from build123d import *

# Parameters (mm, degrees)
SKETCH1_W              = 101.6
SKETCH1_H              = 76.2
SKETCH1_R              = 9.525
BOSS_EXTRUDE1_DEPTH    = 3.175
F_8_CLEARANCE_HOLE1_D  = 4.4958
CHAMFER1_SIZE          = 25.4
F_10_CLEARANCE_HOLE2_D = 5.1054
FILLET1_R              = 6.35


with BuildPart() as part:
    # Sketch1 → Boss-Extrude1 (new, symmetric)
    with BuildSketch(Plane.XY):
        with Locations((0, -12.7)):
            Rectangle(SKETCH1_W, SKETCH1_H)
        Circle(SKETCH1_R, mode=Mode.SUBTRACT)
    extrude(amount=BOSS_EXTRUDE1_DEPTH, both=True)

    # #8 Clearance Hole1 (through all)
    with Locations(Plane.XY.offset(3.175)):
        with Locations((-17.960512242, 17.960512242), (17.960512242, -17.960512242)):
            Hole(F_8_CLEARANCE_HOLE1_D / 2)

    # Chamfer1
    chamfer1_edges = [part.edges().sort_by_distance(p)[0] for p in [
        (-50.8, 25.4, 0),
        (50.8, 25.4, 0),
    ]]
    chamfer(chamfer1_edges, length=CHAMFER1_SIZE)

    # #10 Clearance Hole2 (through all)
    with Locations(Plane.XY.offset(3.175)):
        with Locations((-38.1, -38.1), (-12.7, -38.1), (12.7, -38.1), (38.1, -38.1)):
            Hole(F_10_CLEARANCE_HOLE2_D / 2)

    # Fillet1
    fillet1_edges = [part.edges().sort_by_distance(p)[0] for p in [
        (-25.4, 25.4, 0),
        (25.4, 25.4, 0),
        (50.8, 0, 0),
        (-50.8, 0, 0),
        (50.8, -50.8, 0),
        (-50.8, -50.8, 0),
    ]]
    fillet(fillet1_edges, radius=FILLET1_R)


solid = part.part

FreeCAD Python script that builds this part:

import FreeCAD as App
import Part
import Sketcher

V = App.Vector
Q = App.Units.Quantity


def edges_at(feature, points):
    """Names of the edges that pass closest to the given points."""
    edges = feature.Shape.Edges
    near = lambda p: min(range(len(edges)), key=lambda i: edges[i].distToShape(Part.Vertex(*p))[0])
    return sorted({f"Edge{near(p) + 1}" for p in points})

doc = App.newDocument("Part")
body = doc.addObject("PartDesign::Body", "Body")

# Sketch on XY plane
sketch1 = body.newObject("Sketcher::SketchObject", "Sketch")
sketch1.AttachmentSupport = (doc.getObject("XY_Plane"), [""])
sketch1.MapMode = "FlatFace"
sketch1.addGeometry([
    Part.LineSegment(V(-50.8, 25.4, 0), V(-50.8, -50.8, 0)),  # 0
    Part.LineSegment(V(-50.8, -50.8, 0), V(50.8, -50.8, 0)),  # 1
    Part.LineSegment(V(50.8, -50.8, 0), V(50.8, 25.4, 0)),  # 2
    Part.LineSegment(V(50.8, 25.4, 0), V(-50.8, 25.4, 0)),  # 3
    Part.Circle(V(0, 0, 0), V(0, 0, 1), 9.525),  # 4
], False)
sketch1.addConstraint([
    Sketcher.Constraint("Coincident", 0, 2, 1, 1),
    Sketcher.Constraint("Coincident", 1, 2, 2, 1),
    Sketcher.Constraint("Coincident", 2, 2, 3, 1),
    Sketcher.Constraint("Coincident", 3, 2, 0, 1),
    Sketcher.Constraint("Vertical", 0),
    Sketcher.Constraint("Horizontal", 1),
    Sketcher.Constraint("Vertical", 2),
    Sketcher.Constraint("Horizontal", 3),
    Sketcher.Constraint("Coincident", 4, 3, -1, 1),
    Sketcher.Constraint("Diameter", 4, Q("0.75 in")),
    Sketcher.Constraint("DistanceX", 1, 1, 1, 2, Q("4 in")),
    Sketcher.Constraint("DistanceY", 0, 2, 0, 1, Q("3 in")),
    Sketcher.Constraint("DistanceX", 0, 2, -1, 1, Q("2 in")),
    Sketcher.Constraint("DistanceY", 0, 2, -1, 1, Q("2 in")),
])
pad1 = body.newObject("PartDesign::Pad", "Pad")
pad1.Profile = sketch1
pad1.Length = Q("0.25 in")
pad1.Midplane = True

# Sketch on XY plane
sketch2 = body.newObject("Sketcher::SketchObject", "Sketch001")
sketch2.AttachmentSupport = (doc.getObject("XY_Plane"), [""])
sketch2.MapMode = "FlatFace"
sketch2.AttachmentOffset = App.Placement(V(0, 0, 0.125 * 25.4), App.Rotation())
sketch2.addGeometry([
    Part.Circle(V(-17.960512, 17.960512, 0), V(0, 0, 1), 2.2479),
    Part.Circle(V(17.960512, -17.960512, 0), V(0, 0, 1), 2.2479),
], False)
sketch2.addConstraint([
    Sketcher.Constraint("Equal", 0, 1),
    Sketcher.Constraint("Symmetric", 0, 3, 1, 3, -1, 1),
    Sketcher.Constraint("Diameter", 0, Q("0.177 in")),
    Sketcher.Constraint("DistanceX", 0, 3, -1, 1, 17.960512),
    Sketcher.Constraint("DistanceY", -1, 1, 0, 3, 17.960512),
])
doc.recompute()
hole = body.newObject("PartDesign::Hole", "Hole")
hole.Profile = sketch2
hole.ThreadType = "None"
hole.Diameter = Q("0.177 in")
hole.DepthType = "ThroughAll"
doc.recompute()

chamfer = body.newObject("PartDesign::Chamfer", "Chamfer")
chamfer.Base = (hole, edges_at(hole, [(-50.8, 25.4, 0), (50.8, 25.4, 0)]))
chamfer.Size = Q("1 in")

# Sketch on XY plane
sketch3 = body.newObject("Sketcher::SketchObject", "Sketch002")
sketch3.AttachmentSupport = (doc.getObject("XY_Plane"), [""])
sketch3.MapMode = "FlatFace"
sketch3.AttachmentOffset = App.Placement(V(0, 0, 0.125 * 25.4), App.Rotation())
sketch3.addGeometry([
    Part.Circle(V(-38.1, -38.1, 0), V(0, 0, 1), 2.5527),
    Part.Circle(V(-12.7, -38.1, 0), V(0, 0, 1), 2.5527),
    Part.Circle(V(12.7, -38.1, 0), V(0, 0, 1), 2.5527),
    Part.Circle(V(38.1, -38.1, 0), V(0, 0, 1), 2.5527),
], False)
sketch3.addConstraint([
    Sketcher.Constraint("Equal", 0, 1),
    Sketcher.Constraint("Equal", 1, 2),
    Sketcher.Constraint("Equal", 2, 3),
    Sketcher.Constraint("Symmetric", 1, 3, 2, 3, -2),
    Sketcher.Constraint("Symmetric", 0, 3, 3, 3, -2),
    Sketcher.Constraint("Horizontal", 0, 3, 1, 3),
    Sketcher.Constraint("Diameter", 0, Q("0.201 in")),
    Sketcher.Constraint("DistanceX", 0, 3, 1, 3, Q("1 in")),
    Sketcher.Constraint("DistanceX", 1, 3, 2, 3, Q("1 in")),
    Sketcher.Constraint("DistanceY", 0, 3, -1, 1, Q("1.5 in")),
])
doc.recompute()
hole2 = body.newObject("PartDesign::Hole", "Hole001")
hole2.Profile = sketch3
hole2.ThreadType = "None"
hole2.Diameter = Q("0.201 in")
hole2.DepthType = "ThroughAll"
doc.recompute()

fillet = body.newObject("PartDesign::Fillet", "Fillet")
fillet.Base = (hole2, edges_at(hole2, [
    (-25.4, 25.4, 0),
    (25.4, 25.4, 0),
    (50.8, 0, 0),
    (-50.8, 0, 0),
    (50.8, -50.8, 0),
    (-50.8, -50.8, 0),
]))
fillet.Radius = Q("0.25 in")

doc.recompute()
